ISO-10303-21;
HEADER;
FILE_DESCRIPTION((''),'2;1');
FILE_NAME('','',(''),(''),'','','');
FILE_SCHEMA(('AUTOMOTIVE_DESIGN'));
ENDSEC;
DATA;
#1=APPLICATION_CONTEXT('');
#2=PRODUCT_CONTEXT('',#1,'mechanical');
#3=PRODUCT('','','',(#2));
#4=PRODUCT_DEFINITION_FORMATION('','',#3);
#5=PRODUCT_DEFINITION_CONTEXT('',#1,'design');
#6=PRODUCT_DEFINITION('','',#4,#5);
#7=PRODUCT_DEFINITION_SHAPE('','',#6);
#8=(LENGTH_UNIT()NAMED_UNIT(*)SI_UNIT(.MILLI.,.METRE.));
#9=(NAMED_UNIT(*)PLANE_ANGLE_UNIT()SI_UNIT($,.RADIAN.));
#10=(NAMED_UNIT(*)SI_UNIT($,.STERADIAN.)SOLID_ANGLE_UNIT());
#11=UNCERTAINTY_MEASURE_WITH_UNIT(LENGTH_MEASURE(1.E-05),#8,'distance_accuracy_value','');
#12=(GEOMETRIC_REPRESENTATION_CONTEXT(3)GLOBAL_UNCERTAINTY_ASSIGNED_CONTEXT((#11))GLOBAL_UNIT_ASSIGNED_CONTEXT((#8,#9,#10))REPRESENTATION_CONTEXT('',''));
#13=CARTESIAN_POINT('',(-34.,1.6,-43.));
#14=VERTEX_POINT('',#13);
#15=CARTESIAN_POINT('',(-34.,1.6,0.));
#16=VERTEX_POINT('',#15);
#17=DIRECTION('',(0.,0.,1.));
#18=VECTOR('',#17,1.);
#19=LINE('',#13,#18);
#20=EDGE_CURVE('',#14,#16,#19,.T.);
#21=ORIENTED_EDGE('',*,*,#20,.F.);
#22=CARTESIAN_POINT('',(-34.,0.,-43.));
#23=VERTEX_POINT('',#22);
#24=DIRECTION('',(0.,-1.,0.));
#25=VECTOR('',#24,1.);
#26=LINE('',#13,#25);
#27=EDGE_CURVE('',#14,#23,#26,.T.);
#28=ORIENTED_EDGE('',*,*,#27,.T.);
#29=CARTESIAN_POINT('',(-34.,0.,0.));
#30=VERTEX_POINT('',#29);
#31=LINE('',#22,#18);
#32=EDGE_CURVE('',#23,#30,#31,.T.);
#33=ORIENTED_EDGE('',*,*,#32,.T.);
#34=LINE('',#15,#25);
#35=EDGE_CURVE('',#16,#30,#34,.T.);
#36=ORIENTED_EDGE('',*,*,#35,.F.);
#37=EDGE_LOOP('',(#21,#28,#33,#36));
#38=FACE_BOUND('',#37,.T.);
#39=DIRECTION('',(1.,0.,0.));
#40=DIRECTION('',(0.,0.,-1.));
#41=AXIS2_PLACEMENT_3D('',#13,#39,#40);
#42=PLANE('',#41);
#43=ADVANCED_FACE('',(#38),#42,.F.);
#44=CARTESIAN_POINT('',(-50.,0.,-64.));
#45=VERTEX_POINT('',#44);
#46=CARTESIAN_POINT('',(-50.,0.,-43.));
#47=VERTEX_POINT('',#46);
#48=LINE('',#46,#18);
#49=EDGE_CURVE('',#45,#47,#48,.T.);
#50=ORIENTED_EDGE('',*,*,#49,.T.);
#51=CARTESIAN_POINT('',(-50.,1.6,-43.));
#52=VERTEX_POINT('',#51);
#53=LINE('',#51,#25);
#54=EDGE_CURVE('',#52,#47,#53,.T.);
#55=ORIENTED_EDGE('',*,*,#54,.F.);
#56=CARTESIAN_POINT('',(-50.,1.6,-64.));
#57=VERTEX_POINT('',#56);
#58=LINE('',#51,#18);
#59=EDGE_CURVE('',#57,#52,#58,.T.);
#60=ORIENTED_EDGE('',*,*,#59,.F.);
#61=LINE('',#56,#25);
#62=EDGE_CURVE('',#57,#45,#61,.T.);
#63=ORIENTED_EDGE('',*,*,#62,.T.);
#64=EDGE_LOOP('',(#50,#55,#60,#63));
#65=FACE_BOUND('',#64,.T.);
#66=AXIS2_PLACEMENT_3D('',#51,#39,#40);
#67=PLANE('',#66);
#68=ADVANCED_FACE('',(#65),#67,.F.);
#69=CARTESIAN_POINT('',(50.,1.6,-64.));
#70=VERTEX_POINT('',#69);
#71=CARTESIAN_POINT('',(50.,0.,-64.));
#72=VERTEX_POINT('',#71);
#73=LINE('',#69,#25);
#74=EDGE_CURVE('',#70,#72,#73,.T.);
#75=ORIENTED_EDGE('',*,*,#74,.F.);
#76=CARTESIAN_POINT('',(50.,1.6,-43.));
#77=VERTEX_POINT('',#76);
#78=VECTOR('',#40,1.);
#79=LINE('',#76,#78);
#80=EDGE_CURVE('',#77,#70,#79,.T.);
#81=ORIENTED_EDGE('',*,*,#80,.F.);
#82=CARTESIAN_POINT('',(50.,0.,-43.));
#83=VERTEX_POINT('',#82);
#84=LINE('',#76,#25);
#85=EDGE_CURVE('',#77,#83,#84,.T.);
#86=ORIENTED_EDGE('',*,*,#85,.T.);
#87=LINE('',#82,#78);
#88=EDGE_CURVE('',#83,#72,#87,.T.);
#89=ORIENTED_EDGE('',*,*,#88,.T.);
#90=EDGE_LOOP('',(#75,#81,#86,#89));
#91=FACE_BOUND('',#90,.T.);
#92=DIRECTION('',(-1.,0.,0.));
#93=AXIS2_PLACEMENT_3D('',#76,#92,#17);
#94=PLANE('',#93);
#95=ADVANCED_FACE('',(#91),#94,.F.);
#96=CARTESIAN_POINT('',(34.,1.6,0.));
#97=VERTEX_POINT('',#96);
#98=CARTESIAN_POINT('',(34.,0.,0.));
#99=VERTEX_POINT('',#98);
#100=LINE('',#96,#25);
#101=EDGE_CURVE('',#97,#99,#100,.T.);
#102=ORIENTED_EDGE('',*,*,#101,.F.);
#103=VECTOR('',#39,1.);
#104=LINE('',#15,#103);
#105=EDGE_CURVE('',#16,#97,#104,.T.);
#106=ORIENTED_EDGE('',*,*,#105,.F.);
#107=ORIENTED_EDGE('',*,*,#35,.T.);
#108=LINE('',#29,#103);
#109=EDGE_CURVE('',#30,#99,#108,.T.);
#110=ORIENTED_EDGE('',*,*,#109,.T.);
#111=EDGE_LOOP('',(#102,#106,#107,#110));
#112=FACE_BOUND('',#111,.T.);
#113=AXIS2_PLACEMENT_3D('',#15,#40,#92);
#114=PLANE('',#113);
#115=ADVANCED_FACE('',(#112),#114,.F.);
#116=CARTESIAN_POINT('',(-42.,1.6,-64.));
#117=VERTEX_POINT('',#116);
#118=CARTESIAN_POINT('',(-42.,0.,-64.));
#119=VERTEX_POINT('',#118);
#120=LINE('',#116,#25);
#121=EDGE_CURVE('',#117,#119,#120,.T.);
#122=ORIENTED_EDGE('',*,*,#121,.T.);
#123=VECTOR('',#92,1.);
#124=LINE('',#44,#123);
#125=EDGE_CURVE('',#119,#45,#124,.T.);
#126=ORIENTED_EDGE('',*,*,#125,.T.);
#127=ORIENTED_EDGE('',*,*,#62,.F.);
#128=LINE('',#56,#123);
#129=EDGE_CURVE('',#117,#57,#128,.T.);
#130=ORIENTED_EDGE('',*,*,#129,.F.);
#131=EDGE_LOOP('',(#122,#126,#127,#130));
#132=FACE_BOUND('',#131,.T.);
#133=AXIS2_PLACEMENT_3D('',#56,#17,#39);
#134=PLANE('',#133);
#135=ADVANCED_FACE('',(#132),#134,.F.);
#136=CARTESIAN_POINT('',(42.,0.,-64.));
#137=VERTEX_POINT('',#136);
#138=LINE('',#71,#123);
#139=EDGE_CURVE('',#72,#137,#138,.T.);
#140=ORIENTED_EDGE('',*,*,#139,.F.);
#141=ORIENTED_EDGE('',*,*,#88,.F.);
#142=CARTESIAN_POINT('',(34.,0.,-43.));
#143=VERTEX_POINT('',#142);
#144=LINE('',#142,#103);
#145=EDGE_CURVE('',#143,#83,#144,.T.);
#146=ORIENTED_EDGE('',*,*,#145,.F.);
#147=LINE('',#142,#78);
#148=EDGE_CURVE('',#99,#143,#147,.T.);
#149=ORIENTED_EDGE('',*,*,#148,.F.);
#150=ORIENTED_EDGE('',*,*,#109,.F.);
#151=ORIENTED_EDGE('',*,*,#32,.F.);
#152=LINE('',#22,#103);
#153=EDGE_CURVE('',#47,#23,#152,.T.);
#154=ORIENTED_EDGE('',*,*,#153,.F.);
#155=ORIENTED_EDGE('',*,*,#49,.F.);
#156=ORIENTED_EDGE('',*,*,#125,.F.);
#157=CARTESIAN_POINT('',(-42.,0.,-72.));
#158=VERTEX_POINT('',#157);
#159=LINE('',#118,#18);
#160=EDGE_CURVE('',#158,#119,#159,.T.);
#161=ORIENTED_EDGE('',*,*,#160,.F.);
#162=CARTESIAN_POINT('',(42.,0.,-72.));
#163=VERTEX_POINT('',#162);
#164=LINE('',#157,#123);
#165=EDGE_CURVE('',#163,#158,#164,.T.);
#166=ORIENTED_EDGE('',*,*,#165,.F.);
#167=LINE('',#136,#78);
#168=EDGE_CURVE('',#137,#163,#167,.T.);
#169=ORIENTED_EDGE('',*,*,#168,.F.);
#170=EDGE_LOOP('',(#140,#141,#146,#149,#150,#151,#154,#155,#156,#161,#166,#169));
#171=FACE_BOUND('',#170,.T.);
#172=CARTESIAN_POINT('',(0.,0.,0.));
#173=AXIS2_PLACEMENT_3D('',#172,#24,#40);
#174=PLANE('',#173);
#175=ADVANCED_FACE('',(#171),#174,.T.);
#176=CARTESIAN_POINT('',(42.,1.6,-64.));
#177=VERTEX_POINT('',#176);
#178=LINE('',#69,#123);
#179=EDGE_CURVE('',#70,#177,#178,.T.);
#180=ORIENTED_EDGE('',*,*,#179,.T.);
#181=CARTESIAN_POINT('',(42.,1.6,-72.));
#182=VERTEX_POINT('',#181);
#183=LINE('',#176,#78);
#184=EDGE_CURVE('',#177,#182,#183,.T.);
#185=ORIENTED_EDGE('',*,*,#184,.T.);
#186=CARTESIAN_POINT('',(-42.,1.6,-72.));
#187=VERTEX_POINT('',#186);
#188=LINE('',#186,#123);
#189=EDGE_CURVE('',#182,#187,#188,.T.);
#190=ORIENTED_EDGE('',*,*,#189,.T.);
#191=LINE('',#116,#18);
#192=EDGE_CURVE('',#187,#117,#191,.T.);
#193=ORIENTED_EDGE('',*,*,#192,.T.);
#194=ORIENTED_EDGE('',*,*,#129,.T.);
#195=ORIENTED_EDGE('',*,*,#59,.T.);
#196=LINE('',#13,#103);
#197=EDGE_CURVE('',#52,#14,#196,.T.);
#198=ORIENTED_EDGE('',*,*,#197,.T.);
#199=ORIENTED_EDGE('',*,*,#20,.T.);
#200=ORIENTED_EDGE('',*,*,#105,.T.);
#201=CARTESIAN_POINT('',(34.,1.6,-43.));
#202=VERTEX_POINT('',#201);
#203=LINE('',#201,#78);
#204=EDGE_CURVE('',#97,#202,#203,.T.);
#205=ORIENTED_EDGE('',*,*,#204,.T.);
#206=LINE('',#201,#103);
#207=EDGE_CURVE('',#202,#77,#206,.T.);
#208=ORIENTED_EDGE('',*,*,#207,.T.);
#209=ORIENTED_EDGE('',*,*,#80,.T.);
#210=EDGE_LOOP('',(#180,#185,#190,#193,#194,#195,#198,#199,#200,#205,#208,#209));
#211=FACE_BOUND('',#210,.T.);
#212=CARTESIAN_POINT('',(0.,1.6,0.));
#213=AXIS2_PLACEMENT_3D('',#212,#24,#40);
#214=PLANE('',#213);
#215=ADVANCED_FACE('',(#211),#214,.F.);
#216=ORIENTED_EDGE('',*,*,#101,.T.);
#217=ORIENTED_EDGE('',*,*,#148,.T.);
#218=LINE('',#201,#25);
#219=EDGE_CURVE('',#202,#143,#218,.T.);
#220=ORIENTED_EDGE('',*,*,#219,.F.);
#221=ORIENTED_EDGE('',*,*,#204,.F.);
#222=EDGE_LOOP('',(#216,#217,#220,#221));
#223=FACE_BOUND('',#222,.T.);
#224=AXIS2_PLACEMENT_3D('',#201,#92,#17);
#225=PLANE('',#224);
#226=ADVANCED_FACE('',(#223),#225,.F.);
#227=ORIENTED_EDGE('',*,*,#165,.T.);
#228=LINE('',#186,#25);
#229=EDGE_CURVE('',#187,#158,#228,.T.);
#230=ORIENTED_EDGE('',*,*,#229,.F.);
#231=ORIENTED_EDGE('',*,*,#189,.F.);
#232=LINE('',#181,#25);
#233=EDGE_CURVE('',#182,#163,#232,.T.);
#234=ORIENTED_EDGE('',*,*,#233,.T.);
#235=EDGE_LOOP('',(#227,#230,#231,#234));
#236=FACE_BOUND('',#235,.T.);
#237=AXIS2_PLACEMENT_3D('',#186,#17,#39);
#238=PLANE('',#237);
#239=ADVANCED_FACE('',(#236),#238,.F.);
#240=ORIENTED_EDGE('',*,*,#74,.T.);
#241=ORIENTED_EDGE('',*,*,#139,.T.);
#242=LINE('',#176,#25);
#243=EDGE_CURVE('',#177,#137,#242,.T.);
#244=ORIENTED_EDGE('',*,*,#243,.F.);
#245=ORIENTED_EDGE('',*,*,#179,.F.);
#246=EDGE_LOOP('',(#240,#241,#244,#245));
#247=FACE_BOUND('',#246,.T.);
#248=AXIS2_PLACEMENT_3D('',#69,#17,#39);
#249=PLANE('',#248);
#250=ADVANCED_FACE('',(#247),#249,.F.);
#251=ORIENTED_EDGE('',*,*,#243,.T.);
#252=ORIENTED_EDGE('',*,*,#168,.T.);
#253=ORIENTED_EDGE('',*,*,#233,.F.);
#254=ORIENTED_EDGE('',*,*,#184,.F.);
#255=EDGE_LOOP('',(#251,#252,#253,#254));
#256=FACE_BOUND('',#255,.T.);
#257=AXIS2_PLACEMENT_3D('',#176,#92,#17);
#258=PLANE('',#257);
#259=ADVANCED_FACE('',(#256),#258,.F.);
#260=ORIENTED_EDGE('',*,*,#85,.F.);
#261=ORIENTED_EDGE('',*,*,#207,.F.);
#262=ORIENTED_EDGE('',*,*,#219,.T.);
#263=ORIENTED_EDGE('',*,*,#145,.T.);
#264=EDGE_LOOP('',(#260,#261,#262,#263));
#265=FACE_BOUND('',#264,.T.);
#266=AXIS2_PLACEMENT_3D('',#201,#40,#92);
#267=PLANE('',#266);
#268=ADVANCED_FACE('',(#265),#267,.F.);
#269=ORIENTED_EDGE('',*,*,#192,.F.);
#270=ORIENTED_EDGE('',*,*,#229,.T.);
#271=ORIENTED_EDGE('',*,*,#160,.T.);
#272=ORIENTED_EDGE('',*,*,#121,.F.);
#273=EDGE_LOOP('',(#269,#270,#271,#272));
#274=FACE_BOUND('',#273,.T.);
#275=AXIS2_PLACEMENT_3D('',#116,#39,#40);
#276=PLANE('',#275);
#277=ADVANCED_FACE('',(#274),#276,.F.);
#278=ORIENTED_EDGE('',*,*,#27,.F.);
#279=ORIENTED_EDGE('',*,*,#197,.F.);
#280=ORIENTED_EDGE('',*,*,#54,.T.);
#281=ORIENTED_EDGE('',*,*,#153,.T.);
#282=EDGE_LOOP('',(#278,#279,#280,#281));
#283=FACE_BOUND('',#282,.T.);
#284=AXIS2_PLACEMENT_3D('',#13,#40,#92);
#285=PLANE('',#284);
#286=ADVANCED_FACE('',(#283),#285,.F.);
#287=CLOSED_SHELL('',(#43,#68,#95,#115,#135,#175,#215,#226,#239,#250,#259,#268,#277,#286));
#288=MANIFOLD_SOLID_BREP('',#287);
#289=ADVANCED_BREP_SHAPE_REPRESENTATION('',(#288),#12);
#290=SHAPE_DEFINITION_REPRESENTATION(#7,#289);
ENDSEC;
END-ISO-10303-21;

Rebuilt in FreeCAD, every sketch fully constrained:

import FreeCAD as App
import Part
import Sketcher
from FreeCAD import Vector
Q = App.Units.Quantity


def add_polygon(sketch, points):
    """Adds a closed chain of lines whose ends are joined by coincident constraints."""
    first, n = sketch.GeometryCount, len(points)
    for a, b in zip(points, points[1:] + points[:1]):
        sketch.addGeometry(Part.LineSegment(App.Vector(*a, 0), App.Vector(*b, 0)), False)
    for i in range(n):
        sketch.addConstraint(Sketcher.Constraint("Coincident", first + i, 2, first + (i + 1) % n, 1))

doc = App.newDocument("Part")
body = doc.addObject("PartDesign::Body", "Body")

# Sketch on XZ plane
sketch1 = body.newObject("Sketcher::SketchObject", "Sketch")
sketch1.AttachmentSupport = (doc.getObject("XZ_Plane"), [""])
sketch1.MapMode = "FlatFace"
add_polygon(sketch1, [(-34, -43), (-34, 0), (34, 0), (34, -43), (50, -43), (50, -64), (42, -64), (42, -72), (-42, -72), (-42, -64), (-50, -64), (-50, -43)])  # lines 0-11
sketch1.addConstraint([
    Sketcher.Constraint("Vertical", 0),
    Sketcher.Constraint("Horizontal", 1),
    Sketcher.Constraint("Vertical", 2),
    Sketcher.Constraint("Horizontal", 3),
    Sketcher.Constraint("Vertical", 4),
    Sketcher.Constraint("Horizontal", 5),
    Sketcher.Constraint("Vertical", 6),
    Sketcher.Constraint("Horizontal", 7),
    Sketcher.Constraint("Vertical", 8),
    Sketcher.Constraint("Horizontal", 9),
    Sketcher.Constraint("Vertical", 10),
    Sketcher.Constraint("Horizontal", 11),
    Sketcher.Constraint("Symmetric", 0, 2, 1, 2, -1, 1),
    Sketcher.Constraint("Symmetric", 5, 2, 8, 2, -2),
    Sketcher.Constraint("Symmetric", 3, 2, 10, 2, -2),
    Sketcher.Constraint("Equal", 9, 6),
    Sketcher.Constraint("DistanceX", 1, 1, 1, 2, Q("68 mm")),
    Sketcher.Constraint("DistanceX", 3, 1, 3, 2, Q("16 mm")),
    Sketcher.Constraint("DistanceX", 5, 2, 5, 1, Q("8 mm")),
    Sketcher.Constraint("DistanceY", 0, 1, 0, 2, Q("43 mm")),
    Sketcher.Constraint("DistanceY", 4, 2, 4, 1, Q("21 mm")),
])
pad1 = body.newObject("PartDesign::Pad", "Pad")
pad1.Profile = sketch1
pad1.Length = 1.6
pad1.Reversed = True

doc.recompute()
